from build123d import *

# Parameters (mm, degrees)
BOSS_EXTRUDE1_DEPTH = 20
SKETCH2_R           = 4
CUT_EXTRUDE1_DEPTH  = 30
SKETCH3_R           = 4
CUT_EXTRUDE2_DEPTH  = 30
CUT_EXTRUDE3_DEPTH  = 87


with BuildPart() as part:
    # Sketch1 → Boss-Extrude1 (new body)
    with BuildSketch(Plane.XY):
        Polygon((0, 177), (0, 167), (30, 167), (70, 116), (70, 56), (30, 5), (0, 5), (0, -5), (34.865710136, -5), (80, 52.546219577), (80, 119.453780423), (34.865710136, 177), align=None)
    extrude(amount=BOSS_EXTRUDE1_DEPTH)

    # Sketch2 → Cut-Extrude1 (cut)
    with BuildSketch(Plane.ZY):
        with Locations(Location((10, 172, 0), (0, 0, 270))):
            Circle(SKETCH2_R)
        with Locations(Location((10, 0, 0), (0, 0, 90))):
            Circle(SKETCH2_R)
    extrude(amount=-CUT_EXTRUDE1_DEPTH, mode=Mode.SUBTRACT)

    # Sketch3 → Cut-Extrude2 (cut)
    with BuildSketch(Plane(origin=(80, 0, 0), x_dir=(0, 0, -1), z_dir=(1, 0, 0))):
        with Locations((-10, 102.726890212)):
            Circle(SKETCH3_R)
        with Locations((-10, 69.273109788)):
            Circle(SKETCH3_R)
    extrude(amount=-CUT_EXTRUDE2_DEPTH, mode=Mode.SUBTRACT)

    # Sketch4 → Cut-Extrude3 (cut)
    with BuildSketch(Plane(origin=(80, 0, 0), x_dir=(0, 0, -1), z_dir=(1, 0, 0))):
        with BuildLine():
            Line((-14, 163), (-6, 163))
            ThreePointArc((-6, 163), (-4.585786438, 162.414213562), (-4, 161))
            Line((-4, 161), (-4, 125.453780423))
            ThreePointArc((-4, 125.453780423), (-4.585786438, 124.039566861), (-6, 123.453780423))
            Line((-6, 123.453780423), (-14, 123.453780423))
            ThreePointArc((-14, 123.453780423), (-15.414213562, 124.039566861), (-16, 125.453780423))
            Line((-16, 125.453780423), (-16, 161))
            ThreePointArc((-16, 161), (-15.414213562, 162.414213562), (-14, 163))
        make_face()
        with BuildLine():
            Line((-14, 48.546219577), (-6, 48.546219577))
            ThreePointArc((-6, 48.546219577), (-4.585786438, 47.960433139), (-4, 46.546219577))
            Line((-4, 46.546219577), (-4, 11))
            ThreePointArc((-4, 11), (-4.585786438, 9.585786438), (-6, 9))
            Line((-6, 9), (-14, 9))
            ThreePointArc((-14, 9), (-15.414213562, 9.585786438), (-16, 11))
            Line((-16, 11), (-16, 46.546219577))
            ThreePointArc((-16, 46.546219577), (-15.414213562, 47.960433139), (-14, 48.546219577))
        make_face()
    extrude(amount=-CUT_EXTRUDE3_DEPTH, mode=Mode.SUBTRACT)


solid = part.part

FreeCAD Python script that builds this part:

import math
import FreeCAD as App
import Part
import Sketcher
from FreeCAD import Vector

doc = App.newDocument("Part")
params = doc.addObject("Spreadsheet::Sheet", "Params")
for row, (alias, value) in enumerate([
    ("sketch1_width", "30 mm"),
    ("sketch1_height", "10 mm"),
    ("sketch1_height2", "60 mm"),
    ("pad1_length", "20 mm"),
    ("sketch2_diameter", "8 mm"),
    ("pocket1_length", "30 mm"),
    ("sketch3_diameter", "8 mm"),
    ("pocket2_length", "30 mm"),
    ("sketch4_radius", "2 mm"),
    ("sketch4_height", "8 mm"),
    ("pocket3_length", "87 mm"),
], start=1):
    params.set(f"A{row}", alias)
    params.set(f"B{row}", "=" + value)
    params.setAlias(f"B{row}", alias)

body = doc.addObject("PartDesign::Body", "Body")

sketch1 = body.newObject("Sketcher::SketchObject", "Sketch")
sketch1.AttachmentSupport = (doc.getObject("XY_Plane"), [""])
sketch1.MapMode = "FlatFace"
sketch1.addGeometry([
    Part.LineSegment(Vector(0, 177, 0), Vector(0, 167, 0)),
    Part.LineSegment(Vector(0, 167, 0), Vector(30, 167, 0)),
    Part.LineSegment(Vector(30, 167, 0), Vector(70, 116, 0)),
    Part.LineSegment(Vector(70, 116, 0), Vector(70, 56, 0)),
    Part.LineSegment(Vector(70, 56, 0), Vector(30, 5, 0)),
    Part.LineSegment(Vector(30, 5, 0), Vector(0, 5, 0)),
    Part.LineSegment(Vector(0, 5, 0), Vector(0, -5, 0)),
    Part.LineSegment(Vector(0, -5, 0), Vector(34.86571, -5, 0)),
    Part.LineSegment(Vector(34.86571, -5, 0), Vector(80, 52.54622, 0)),
    Part.LineSegment(Vector(80, 52.54622, 0), Vector(80, 119.45378, 0)),
    Part.LineSegment(Vector(80, 119.45378, 0), Vector(34.86571, 177, 0)),
    Part.LineSegment(Vector(34.86571, 177, 0), Vector(0, 177, 0)),
], False)
sketch1.addConstraint([
    Sketcher.Constraint("Coincident", 0, 2, 1, 1),
    Sketcher.Constraint("Coincident", 1, 2, 2, 1),
    Sketcher.Constraint("Coincident", 2, 2, 3, 1),
    Sketcher.Constraint("Coincident", 3, 2, 4, 1),
    Sketcher.Constraint("Coincident", 4, 2, 5, 1),
    Sketcher.Constraint("Coincident", 5, 2, 6, 1),
    Sketcher.Constraint("Coincident", 6, 2, 7, 1),
    Sketcher.Constraint("Coincident", 7, 2, 8, 1),
    Sketcher.Constraint("Coincident", 8, 2, 9, 1),
    Sketcher.Constraint("Coincident", 9, 2, 10, 1),
    Sketcher.Constraint("Coincident", 10, 2, 11, 1),
    Sketcher.Constraint("Coincident", 11, 2, 0, 1),
    Sketcher.Constraint("Vertical", 0),
    Sketcher.Constraint("Horizontal", 1),
    Sketcher.Constraint("Vertical", 3),
    Sketcher.Constraint("Horizontal", 5),
    Sketcher.Constraint("Vertical", 6),
    Sketcher.Constraint("Horizontal", 7),
    Sketcher.Constraint("Vertical", 9),
    Sketcher.Constraint("Horizontal", 11),
    Sketcher.Constraint("Symmetric", 5, 2, 6, 2, -1, 1),
    Sketcher.Constraint("PointOnObject", 0, 2, -2),
    Sketcher.Constraint("Parallel", 4, 8),
    Sketcher.Constraint("Parallel", 2, 10),
    Sketcher.Constraint("Vertical", 1, 2, 4, 2),
    Sketcher.Constraint("Vertical", 7, 2, 10, 2),
    Sketcher.Constraint("Equal", 0, 6),
    Sketcher.Constraint("Equal", 2, 4),
    Sketcher.Constraint("DistanceX", 1, 1, 1, 2, 30.0),
    Sketcher.Constraint("DistanceY", 0, 2, 0, 1, 10.0),
    Sketcher.Constraint("DistanceY", 3, 2, 3, 1, 60.0),
    Sketcher.Constraint("DistanceY", -1, 1, 0, 2, 167.0),
    Sketcher.Constraint("DistanceX", -1, 1, 2, 2, 70.0),
    Sketcher.Constraint("DistanceX", -1, 1, 8, 2, 80.0),
    Sketcher.Constraint("DistanceX", 7, 1, 7, 2, 34.86571),
])
sketch1.setExpression("Constraints[28]", "Params.sketch1_width")
sketch1.setExpression("Constraints[29]", "Params.sketch1_height")
sketch1.setExpression("Constraints[30]", "Params.sketch1_height2")
pad1 = body.newObject("PartDesign::Pad", "Pad")
pad1.Profile = sketch1
pad1.setExpression("Length", "Params.pad1_length")

sketch2 = body.newObject("Sketcher::SketchObject", "Sketch001")
sketch2.AttachmentSupport = (doc.getObject("YZ_Plane"), [""])
sketch2.MapMode = "FlatFace"
sketch2.addGeometry([
    Part.Circle(Vector(172, 10, 0), Vector(0, 0, 1), 4),
    Part.Circle(Vector(0, 10, 0), Vector(0, 0, 1), 4),
], False)
sketch2.addConstraint([
    Sketcher.Constraint("Equal", 0, 1),
    Sketcher.Constraint("PointOnObject", 1, 3, -2),
    Sketcher.Constraint("Horizontal", 0, 3, 1, 3),
    Sketcher.Constraint("Diameter", 0, 8.0),
    Sketcher.Constraint("DistanceX", -1, 1, 0, 3, 172.0),
    Sketcher.Constraint("DistanceY", -1, 1, 0, 3, 10.0),
])
sketch2.setExpression("Constraints[3]", "Params.sketch2_diameter")
pocket1 = body.newObject("PartDesign::Pocket", "Pocket")
pocket1.Profile = sketch2
pocket1.setExpression("Length", "Params.pocket1_length")
pocket1.Reversed = True

sketch3 = body.newObject("Sketcher::SketchObject", "Sketch002")
sketch3.AttachmentSupport = (doc.getObject("YZ_Plane"), [""])
sketch3.MapMode = "FlatFace"
sketch3.AttachmentOffset = App.Placement(Vector(0, 0, 80), App.Rotation())
sketch3.addGeometry([
    Part.Circle(Vector(102.72689, 10, 0), Vector(0, 0, 1), 4),
    Part.Circle(Vector(69.27311, 10, 0), Vector(0, 0, 1), 4),
], False)
sketch3.addConstraint([
    Sketcher.Constraint("Equal", 0, 1),
    Sketcher.Constraint("Horizontal", 0, 3, 1, 3),
    Sketcher.Constraint("Diameter", 0, 8.0),
    Sketcher.Constraint("DistanceY", -1, 1, 0, 3, 10.0),
    Sketcher.Constraint("DistanceX", -1, 1, 0, 3, 102.72689),
    Sketcher.Constraint("DistanceX", -1, 1, 1, 3, 69.27311),
])
sketch3.setExpression("Constraints[2]", "Params.sketch3_diameter")
pocket2 = body.newObject("PartDesign::Pocket", "Pocket001")
pocket2.Profile = sketch3
pocket2.setExpression("Length", "Params.pocket2_length")

sketch4 = body.newObject("Sketcher::SketchObject", "Sketch003")
sketch4.AttachmentSupport = (doc.getObject("YZ_Plane"), [""])
sketch4.MapMode = "FlatFace"
sketch4.AttachmentOffset = App.Placement(Vector(0, 0, 80), App.Rotation())
sketch4.addGeometry([
    Part.LineSegment(Vector(163, 6, 0), Vector(163, 14, 0)),
    Part.ArcOfCircle(Part.Circle(Vector(161, 14, 0), Vector(0, 0, 1), 2), math.radians(0), math.radians(90)),
    Part.LineSegment(Vector(161, 16, 0), Vector(125.45378, 16, 0)),
    Part.ArcOfCircle(Part.Circle(Vector(125.45378, 14, 0), Vector(0, 0, 1), 2), math.radians(90), math.radians(180)),
    Part.LineSegment(Vector(123.45378, 14, 0), Vector(123.45378, 6, 0)),
    Part.ArcOfCircle(Part.Circle(Vector(125.45378, 6, 0), Vector(0, 0, 1), 2), math.radians(-180), math.radians(-90)),
    Part.LineSegment(Vector(125.45378, 4, 0), Vector(161, 4, 0)),
    Part.ArcOfCircle(Part.Circle(Vector(161, 6, 0), Vector(0, 0, 1), 2), math.radians(-90), math.radians(0)),
    Part.LineSegment(Vector(48.54622, 6, 0), Vector(48.54622, 14, 0)),
    Part.ArcOfCircle(Part.Circle(Vector(46.54622, 14, 0), Vector(0, 0, 1), 2), math.radians(0), math.radians(90)),
    Part.LineSegment(Vector(46.54622, 16, 0), Vector(11, 16, 0)),
    Part.ArcOfCircle(Part.Circle(Vector(11, 14, 0), Vector(0, 0, 1), 2), math.radians(90), math.radians(180)),
    Part.LineSegment(Vector(9, 14, 0), Vector(9, 6, 0)),
    Part.ArcOfCircle(Part.Circle(Vector(11, 6, 0), Vector(0, 0, 1), 2), math.radians(-180), math.radians(-90)),
    Part.LineSegment(Vector(11, 4, 0), Vector(46.54622, 4, 0)),
    Part.ArcOfCircle(Part.Circle(Vector(46.54622, 6, 0), Vector(0, 0, 1), 2), math.radians(-90), math.radians(0)),
], False)
sketch4.addConstraint([
    Sketcher.Constraint("Tangent", 0, 2, 1, 1),
    Sketcher.Constraint("Tangent", 1, 2, 2, 1),
    Sketcher.Constraint("Tangent", 2, 2, 3, 1),
    Sketcher.Constraint("Tangent", 3, 2, 4, 1),
    Sketcher.Constraint("Tangent", 4, 2, 5, 1),
    Sketcher.Constraint("Tangent", 5, 2, 6, 1),
    Sketcher.Constraint("Tangent", 6, 2, 7, 1),
    Sketcher.Constraint("Tangent", 7, 2, 0, 1),
    Sketcher.Constraint("Tangent", 8, 2, 9, 1),
    Sketcher.Constraint("Tangent", 9, 2, 10, 1),
    Sketcher.Constraint("Tangent", 10, 2, 11, 1),
    Sketcher.Constraint("Tangent", 11, 2, 12, 1),
    Sketcher.Constraint("Tangent", 12, 2, 13, 1),
    Sketcher.Constraint("Tangent", 13, 2, 14, 1),
    Sketcher.Constraint("Tangent", 14, 2, 15, 1),
    Sketcher.Constraint("Tangent", 15, 2, 8, 1),
    Sketcher.Constraint("Vertical", 0),
    Sketcher.Constraint("Horizontal", 2),
    Sketcher.Constraint("Vertical", 4),
    Sketcher.Constraint("Horizontal", 6),
    Sketcher.Constraint("Vertical", 8),
    Sketcher.Constraint("Horizontal", 10),
    Sketcher.Constraint("Vertical", 12),
    Sketcher.Constraint("Horizontal", 14),
    Sketcher.Constraint("Equal", 1, 3),
    Sketcher.Constraint("Equal", 3, 5),
    Sketcher.Constraint("Equal", 5, 7),
    Sketcher.Constraint("Equal", 7, 9),
    Sketcher.Constraint("Equal", 9, 11),
    Sketcher.Constraint("Equal", 11, 13),
    Sketcher.Constraint("Equal", 13, 15),
    Sketcher.Constraint("Horizontal", 3, 3, 9, 3),
    Sketcher.Constraint("Horizontal", 7, 3, 13, 3),
    Sketcher.Constraint("Equal", 6, 10),
    Sketcher.Constraint("Radius", 1, 2.0),
    Sketcher.Constraint("DistanceY", 0, 1, 0, 2, 8.0),
    Sketcher.Constraint("DistanceX", -1, 1, 1, 3, 161.0),
    Sketcher.Constraint("DistanceY", -1, 1, 1, 3, 14.0),
    Sketcher.Constraint("DistanceX", -1, 1, 11, 3, 11.0),
    Sketcher.Constraint("DistanceX", 2, 2, 2, 1, 35.54622),
])
sketch4.setExpression("Constraints[34]", "Params.sketch4_radius")
sketch4.setExpression("Constraints[35]", "Params.sketch4_height")
pocket3 = body.newObject("PartDesign::Pocket", "Pocket002")
pocket3.Profile = sketch4
pocket3.setExpression("Length", "Params.pocket3_length")

doc.recompute()
